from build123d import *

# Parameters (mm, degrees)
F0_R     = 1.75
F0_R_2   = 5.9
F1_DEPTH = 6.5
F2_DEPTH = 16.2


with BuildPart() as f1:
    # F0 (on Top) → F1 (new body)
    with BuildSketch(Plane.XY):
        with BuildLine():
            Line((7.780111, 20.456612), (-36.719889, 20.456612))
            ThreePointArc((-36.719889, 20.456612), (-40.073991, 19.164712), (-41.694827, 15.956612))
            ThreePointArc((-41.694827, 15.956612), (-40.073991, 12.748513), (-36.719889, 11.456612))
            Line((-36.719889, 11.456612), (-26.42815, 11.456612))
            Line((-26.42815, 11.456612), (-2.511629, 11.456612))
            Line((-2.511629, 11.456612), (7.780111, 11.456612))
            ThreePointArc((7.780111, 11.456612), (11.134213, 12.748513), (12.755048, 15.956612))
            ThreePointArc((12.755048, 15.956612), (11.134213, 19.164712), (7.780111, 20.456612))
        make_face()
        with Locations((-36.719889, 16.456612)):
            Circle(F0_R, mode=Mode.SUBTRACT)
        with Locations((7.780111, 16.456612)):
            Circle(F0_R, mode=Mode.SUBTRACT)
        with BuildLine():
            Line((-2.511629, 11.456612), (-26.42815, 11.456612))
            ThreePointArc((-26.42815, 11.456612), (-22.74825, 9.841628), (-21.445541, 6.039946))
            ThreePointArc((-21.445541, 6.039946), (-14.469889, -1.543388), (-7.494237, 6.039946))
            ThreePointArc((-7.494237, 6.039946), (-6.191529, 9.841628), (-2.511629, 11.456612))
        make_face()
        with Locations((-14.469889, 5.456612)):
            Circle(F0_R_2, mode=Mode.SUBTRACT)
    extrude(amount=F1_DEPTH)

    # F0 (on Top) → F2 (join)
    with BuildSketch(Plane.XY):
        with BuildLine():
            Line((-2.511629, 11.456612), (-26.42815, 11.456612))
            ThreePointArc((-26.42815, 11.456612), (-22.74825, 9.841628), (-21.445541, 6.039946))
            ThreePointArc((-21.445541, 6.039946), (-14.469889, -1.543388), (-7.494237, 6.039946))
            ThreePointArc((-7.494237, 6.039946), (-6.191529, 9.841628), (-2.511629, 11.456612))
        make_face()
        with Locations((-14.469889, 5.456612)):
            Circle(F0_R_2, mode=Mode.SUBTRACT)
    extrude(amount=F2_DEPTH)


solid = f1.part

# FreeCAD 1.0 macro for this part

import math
import FreeCAD as App
import Part
import Sketcher
from FreeCAD import Vector
Q = App.Units.Quantity

doc = App.newDocument("Part")
body = doc.addObject("PartDesign::Body", "Body")

# Sketch on XY plane
sketch1 = doc.addObject("Sketcher::SketchObject", "Sketch")
body.addObject(sketch1)
sketch1.AttachmentSupport = (doc.XY_Plane, [""])
sketch1.MapMode = "FlatFace"
sketch1.addGeometry([
    Part.LineSegment(Vector(7.8, 20.5, 0), Vector(-36.7, 20.5, 0)),  # 0
    Part.ArcOfCircle(Part.Circle(Vector(-36.7, 15.5, 0), Vector(0, 0, 1), 5), math.radians(90), math.radians(174)),  # 1
    Part.ArcOfCircle(Part.Circle(Vector(-36.7, 16.5, 0), Vector(0, 0, 1), 5), math.radians(-174), math.radians(-90)),  # 2
    Part.LineSegment(Vector(-36.7, 11.5, 0), Vector(-26.4, 11.5, 0)),  # 3
    Part.ArcOfCircle(Part.Circle(Vector(-26.4, 6.5, 0), Vector(0, 0, 1), 5), math.radians(-5), math.radians(90)),  # 4
    Part.ArcOfCircle(Part.Circle(Vector(-14.5, 5.5, 0), Vector(0, 0, 1), 7), math.radians(175), math.radians(365)),  # 5
    Part.ArcOfCircle(Part.Circle(Vector(-2.5, 6.5, 0), Vector(0, 0, 1), 5), math.radians(90), math.radians(185)),  # 6
    Part.LineSegment(Vector(-2.5, 11.5, 0), Vector(7.8, 11.5, 0)),  # 7
    Part.ArcOfCircle(Part.Circle(Vector(7.8, 16.5, 0), Vector(0, 0, 1), 5), math.radians(-90), math.radians(-6)),  # 8
    Part.ArcOfCircle(Part.Circle(Vector(7.8, 15.5, 0), Vector(0, 0, 1), 5), math.radians(6), math.radians(90)),  # 9
    Part.Circle(Vector(-14.5, 5.5, 0), Vector(0, 0, 1), 5.9),  # 10
    Part.Circle(Vector(-36.7, 16.5, 0), Vector(0, 0, 1), 1.8),  # 11
    Part.Circle(Vector(7.8, 16.5, 0), Vector(0, 0, 1), 1.8),  # 12
], False)
sketch1.addConstraint([
    Sketcher.Constraint("Tangent", 0, 2, 1, 1),
    Sketcher.Constraint("Coincident", 1, 2, 2, 1),
    Sketcher.Constraint("Tangent", 2, 2, 3, 1),
    Sketcher.Constraint("Tangent", 3, 2, 4, 2),
    Sketcher.Constraint("Tangent", 4, 1, 5, 1),
    Sketcher.Constraint("Tangent", 5, 2, 6, 2),
    Sketcher.Constraint("Tangent", 6, 1, 7, 1),
    Sketcher.Constraint("Tangent", 7, 2, 8, 1),
    Sketcher.Constraint("Coincident", 8, 2, 9, 1),
    Sketcher.Constraint("Tangent", 9, 2, 0, 1),
    Sketcher.Constraint("Horizontal", 0),
    Sketcher.Constraint("Horizontal", 3),
    Sketcher.Constraint("Horizontal", 7),
    Sketcher.Constraint("Coincident", 10, 3, 5, 3),
    Sketcher.Constraint("Coincident", 11, 3, 2, 3),
    Sketcher.Constraint("Coincident", 12, 3, 8, 3),
    Sketcher.Constraint("Equal", 2, 4),
    Sketcher.Constraint("Equal", 4, 6),
    Sketcher.Constraint("Equal", 6, 8),
    Sketcher.Constraint("Equal", 6, 9),
    Sketcher.Constraint("Equal", 11, 12),
    Sketcher.Constraint("Horizontal", 4, 3, 6, 3),
    Sketcher.Constraint("Horizontal", 1, 3, 9, 3),
    Sketcher.Constraint("Horizontal", 1, 2, 8, 2),
    Sketcher.Constraint("Vertical", 1, 3, 2, 3),
    Sketcher.Constraint("Equal", 3, 7),
    Sketcher.Constraint("Radius", 1, Q("5 mm")),
    Sketcher.Constraint("Radius", 5, Q("7 mm")),
    Sketcher.Constraint("Diameter", 10, Q("11.8 mm")),
    Sketcher.Constraint("Diameter", 11, Q("3.5 mm")),
    Sketcher.Constraint("DistanceX", 0, 2, 0, 1, Q("44.5 mm")),
    Sketcher.Constraint("DistanceY", 1, 3, 2, 3, Q("1.000002 mm")),
    Sketcher.Constraint("DistanceY", 5, 3, 4, 3, Q("0.999999 mm")),
    Sketcher.Constraint("DistanceX", 1, 3, -1, 1, Q("36.71989 mm")),
    Sketcher.Constraint("DistanceY", -1, 1, 4, 3, Q("6.456611 mm")),
])
pad1 = doc.addObject("PartDesign::Pad", "Pad")
body.addObject(pad1)
pad1.Profile = sketch1
pad1.Length = 6.5

# Sketch on XY plane
sketch2 = doc.addObject("Sketcher::SketchObject", "Sketch001")
body.addObject(sketch2)
sketch2.AttachmentSupport = (doc.XY_Plane, [""])
sketch2.MapMode = "FlatFace"
sketch2.addGeometry([
    Part.LineSegment(Vector(-2.5, 11.5, 0), Vector(-26.4, 11.5, 0)),  # 0
    Part.ArcOfCircle(Part.Circle(Vector(-26.4, 6.5, 0), Vector(0, 0, 1), 5), math.radians(-5), math.radians(90)),  # 1
    Part.ArcOfCircle(Part.Circle(Vector(-14.5, 5.5, 0), Vector(0, 0, 1), 7), math.radians(175), math.radians(365)),  # 2
    Part.ArcOfCircle(Part.Circle(Vector(-2.5, 6.5, 0), Vector(0, 0, 1), 5), math.radians(90), math.radians(185)),  # 3
    Part.Circle(Vector(-14.5, 5.5, 0), Vector(0, 0, 1), 5.9),  # 4
], False)
sketch2.addConstraint([
    Sketcher.Constraint("Tangent", 0, 2, 1, 2),
    Sketcher.Constraint("Tangent", 1, 1, 2, 1),
    Sketcher.Constraint("Tangent", 2, 2, 3, 2),
    Sketcher.Constraint("Tangent", 3, 1, 0, 1),
    Sketcher.Constraint("Horizontal", 0),
    Sketcher.Constraint("Coincident", 4, 3, 2, 3),
    Sketcher.Constraint("Equal", 1, 3),
    Sketcher.Constraint("Radius", 1, Q("5.000001 mm")),
    Sketcher.Constraint("Radius", 2, Q("7 mm")),
    Sketcher.Constraint("Diameter", 4, Q("11.8 mm")),
    Sketcher.Constraint("DistanceY", 2, 3, 1, 3, Q("0.999999 mm")),
    Sketcher.Constraint("DistanceX", 1, 3, -1, 1, Q("26.428151 mm")),
    Sketcher.Constraint("DistanceY", -1, 1, 1, 3, Q("6.456611 mm")),
])
pad2 = doc.addObject("PartDesign::Pad", "Pad001")
body.addObject(pad2)
pad2.Profile = sketch2
pad2.Length = 16.2

doc.recompute()
